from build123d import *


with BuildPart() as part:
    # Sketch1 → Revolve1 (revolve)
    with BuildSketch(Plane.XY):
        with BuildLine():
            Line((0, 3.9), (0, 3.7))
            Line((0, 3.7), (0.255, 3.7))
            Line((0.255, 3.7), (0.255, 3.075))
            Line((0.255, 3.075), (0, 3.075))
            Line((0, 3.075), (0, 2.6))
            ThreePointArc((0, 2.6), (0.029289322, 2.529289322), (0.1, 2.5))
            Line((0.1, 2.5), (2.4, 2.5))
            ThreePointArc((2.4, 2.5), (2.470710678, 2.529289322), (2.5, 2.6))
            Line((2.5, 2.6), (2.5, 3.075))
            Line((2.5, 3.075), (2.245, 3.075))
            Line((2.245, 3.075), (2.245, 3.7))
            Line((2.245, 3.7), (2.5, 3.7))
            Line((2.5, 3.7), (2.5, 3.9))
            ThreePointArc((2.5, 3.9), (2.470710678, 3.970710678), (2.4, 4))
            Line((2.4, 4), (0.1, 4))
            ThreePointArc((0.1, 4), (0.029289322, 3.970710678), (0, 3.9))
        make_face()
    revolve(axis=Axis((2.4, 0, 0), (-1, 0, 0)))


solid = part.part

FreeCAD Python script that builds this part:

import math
import FreeCAD as App
import Part
import Sketcher

V = App.Vector

doc = App.newDocument("Part")
body = doc.addObject("PartDesign::Body", "Body")

sketch1 = body.newObject("Sketcher::SketchObject", "Sketch")
sketch1.AttachmentSupport = (doc.getObject("XY_Plane"), [""])
sketch1.MapMode = "FlatFace"
sketch1.addGeometry(Part.LineSegment(V(0, 3.9, 0), V(0, 3.7, 0)), False)
sketch1.addGeometry(Part.LineSegment(V(0, 3.7, 0), V(0.26, 3.7, 0)), False)
sketch1.addGeometry(Part.LineSegment(V(0.26, 3.7, 0), V(0.26, 3.08, 0)), False)
sketch1.addGeometry(Part.LineSegment(V(0.26, 3.08, 0), V(0, 3.08, 0)), False)
sketch1.addGeometry(Part.LineSegment(V(0, 3.08, 0), V(0, 2.6, 0)), False)
sketch1.addGeometry(Part.ArcOfCircle(Part.Circle(V(0.1, 2.6, 0), V(0, 0, 1), 0.1), math.radians(180), math.radians(270)), False)
sketch1.addGeometry(Part.LineSegment(V(0.1, 2.5, 0), V(2.4, 2.5, 0)), False)
sketch1.addGeometry(Part.ArcOfCircle(Part.Circle(V(2.4, 2.6, 0), V(0, 0, 1), 0.1), math.radians(-90), math.radians(0)), False)
sketch1.addGeometry(Part.LineSegment(V(2.5, 2.6, 0), V(2.5, 3.08, 0)), False)
sketch1.addGeometry(Part.LineSegment(V(2.5, 3.08, 0), V(2.25, 3.08, 0)), False)
sketch1.addGeometry(Part.LineSegment(V(2.25, 3.08, 0), V(2.25, 3.7, 0)), False)
sketch1.addGeometry(Part.LineSegment(V(2.25, 3.7, 0), V(2.5, 3.7, 0)), False)
sketch1.addGeometry(Part.LineSegment(V(2.5, 3.7, 0), V(2.5, 3.9, 0)), False)
sketch1.addGeometry(Part.ArcOfCircle(Part.Circle(V(2.4, 3.9, 0), V(0, 0, 1), 0.1), math.radians(0), math.radians(90)), False)
sketch1.addGeometry(Part.LineSegment(V(2.4, 4, 0), V(0.1, 4, 0)), False)
sketch1.addGeometry(Part.ArcOfCircle(Part.Circle(V(0.1, 3.9, 0), V(0, 0, 1), 0.1), math.radians(90), math.radians(180)), False)
sketch1.addConstraint(Sketcher.Constraint("Coincident", 0, 2, 1, 1))
sketch1.addConstraint(Sketcher.Constraint("Coincident", 1, 2, 2, 1))
sketch1.addConstraint(Sketcher.Constraint("Coincident", 2, 2, 3, 1))
sketch1.addConstraint(Sketcher.Constraint("Coincident", 3, 2, 4, 1))
sketch1.addConstraint(Sketcher.Constraint("Tangent", 4, 2, 5, 1))
sketch1.addConstraint(Sketcher.Constraint("Tangent", 5, 2, 6, 1))
sketch1.addConstraint(Sketcher.Constraint("Tangent", 6, 2, 7, 1))
sketch1.addConstraint(Sketcher.Constraint("Tangent", 7, 2, 8, 1))
sketch1.addConstraint(Sketcher.Constraint("Coincident", 8, 2, 9, 1))
sketch1.addConstraint(Sketcher.Constraint("Coincident", 9, 2, 10, 1))
sketch1.addConstraint(Sketcher.Constraint("Coincident", 10, 2, 11, 1))
sketch1.addConstraint(Sketcher.Constraint("Coincident", 11, 2, 12, 1))
sketch1.addConstraint(Sketcher.Constraint("Tangent", 12, 2, 13, 1))
sketch1.addConstraint(Sketcher.Constraint("Tangent", 13, 2, 14, 1))
sketch1.addConstraint(Sketcher.Constraint("Tangent", 14, 2, 15, 1))
sketch1.addConstraint(Sketcher.Constraint("Tangent", 15, 2, 0, 1))
sketch1.addConstraint(Sketcher.Constraint("Vertical", 0))
sketch1.addConstraint(Sketcher.Constraint("Horizontal", 1))
sketch1.addConstraint(Sketcher.Constraint("Vertical", 2))
sketch1.addConstraint(Sketcher.Constraint("Horizontal", 3))
sketch1.addConstraint(Sketcher.Constraint("Vertical", 4))
sketch1.addConstraint(Sketcher.Constraint("Horizontal", 6))
sketch1.addConstraint(Sketcher.Constraint("Vertical", 8))
sketch1.addConstraint(Sketcher.Constraint("Horizontal", 9))
sketch1.addConstraint(Sketcher.Constraint("Vertical", 10))
sketch1.addConstraint(Sketcher.Constraint("Horizontal", 11))
sketch1.addConstraint(Sketcher.Constraint("Vertical", 12))
sketch1.addConstraint(Sketcher.Constraint("Horizontal", 14))
sketch1.addConstraint(Sketcher.Constraint("Equal", 5, 7))
sketch1.addConstraint(Sketcher.Constraint("Equal", 7, 13))
sketch1.addConstraint(Sketcher.Constraint("Equal", 13, 15))
sketch1.addConstraint(Sketcher.Constraint("PointOnObject", 0, 2, -2))
sketch1.addConstraint(Sketcher.Constraint("PointOnObject", 3, 2, -2))
sketch1.addConstraint(Sketcher.Constraint("Horizontal", 3, 2, 8, 2))
sketch1.addConstraint(Sketcher.Constraint("Horizontal", 1, 2, 10, 2))
sketch1.addConstraint(Sketcher.Constraint("Vertical", 7, 3, 13, 3))
sketch1.addConstraint(Sketcher.Constraint("Equal", 3, 9))
sketch1.addConstraint(Sketcher.Constraint("Radius", 5, 0.1))
sketch1.addConstraint(Sketcher.Constraint("DistanceX", 6, 1, 6, 2, 2.3))
sketch1.addConstraint(Sketcher.Constraint("DistanceY", 0, 2, 0, 1, 0.2))
sketch1.addConstraint(Sketcher.Constraint("DistanceY", -1, 1, 13, 2, 4.0))
sketch1.addConstraint(Sketcher.Constraint("DistanceY", -1, 1, 5, 3, 2.6))
sketch1.addConstraint(Sketcher.Constraint("DistanceX", 1, 1, 1, 2, 0.255))
sketch1.addConstraint(Sketcher.Constraint("DistanceY", 2, 2, 2, 1, 0.625))
revolution = body.newObject("PartDesign::Revolution", "Revolution")
revolution.Profile = sketch1
revolution.ReferenceAxis = (sketch1, ["H_Axis"])
revolution.Angle = 360

doc.recompute()
